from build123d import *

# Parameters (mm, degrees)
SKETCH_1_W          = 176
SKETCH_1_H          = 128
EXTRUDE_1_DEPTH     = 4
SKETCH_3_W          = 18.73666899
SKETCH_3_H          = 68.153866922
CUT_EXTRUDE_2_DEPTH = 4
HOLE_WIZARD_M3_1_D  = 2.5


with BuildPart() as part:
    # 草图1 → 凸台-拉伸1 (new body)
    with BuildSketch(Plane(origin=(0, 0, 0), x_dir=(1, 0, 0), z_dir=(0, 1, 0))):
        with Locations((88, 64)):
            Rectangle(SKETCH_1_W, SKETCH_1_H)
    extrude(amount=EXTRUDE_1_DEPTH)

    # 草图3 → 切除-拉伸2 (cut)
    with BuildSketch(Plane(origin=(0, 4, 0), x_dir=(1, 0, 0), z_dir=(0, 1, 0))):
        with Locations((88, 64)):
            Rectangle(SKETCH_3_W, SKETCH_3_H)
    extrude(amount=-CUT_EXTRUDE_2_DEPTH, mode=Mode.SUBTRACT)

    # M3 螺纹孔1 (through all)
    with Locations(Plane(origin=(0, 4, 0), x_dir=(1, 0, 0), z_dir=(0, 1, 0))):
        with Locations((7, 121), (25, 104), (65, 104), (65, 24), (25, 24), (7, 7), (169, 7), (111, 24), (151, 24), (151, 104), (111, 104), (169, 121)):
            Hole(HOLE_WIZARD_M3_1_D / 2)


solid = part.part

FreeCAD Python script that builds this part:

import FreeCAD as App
import Part
import Sketcher

V = App.Vector


def add_polygon(sketch, points):
    """Adds a closed chain of lines whose ends are joined by coincident constraints."""
    first, n = sketch.GeometryCount, len(points)
    for a, b in zip(points, points[1:] + points[:1]):
        sketch.addGeometry(Part.LineSegment(App.Vector(*a, 0), App.Vector(*b, 0)), False)
    for i in range(n):
        sketch.addConstraint(Sketcher.Constraint("Coincident", first + i, 2, first + (i + 1) % n, 1))

doc = App.newDocument("Part")
body = doc.addObject("PartDesign::Body", "Body")

# Sketch on XZ plane
sketch1 = doc.addObject("Sketcher::SketchObject", "Sketch")
body.addObject(sketch1)
sketch1.AttachmentSupport = (doc.XZ_Plane, [""])
sketch1.MapMode = "FlatFace"
add_polygon(sketch1, [(0, -128), (0, 0), (176, 0), (176, -128)])  # lines 0-3
sketch1.addConstraint([
    Sketcher.Constraint("Vertical", 0),
    Sketcher.Constraint("Horizontal", 1),
    Sketcher.Constraint("Vertical", 2),
    Sketcher.Constraint("Horizontal", 3),
    Sketcher.Constraint("Coincident", 0, 2, -1, 1),
    Sketcher.Constraint("DistanceX", 1, 1, 1, 2, 176.0),
    Sketcher.Constraint("DistanceY", 0, 1, 0, 2, 128.0),
])
pad1 = doc.addObject("PartDesign::Pad", "Pad")
body.addObject(pad1)
pad1.Profile = sketch1
pad1.Length = 4
pad1.Reversed = True

# Sketch on XZ plane
sketch2 = doc.addObject("Sketcher::SketchObject", "Sketch001")
body.addObject(sketch2)
sketch2.AttachmentSupport = (doc.XZ_Plane, [""])
sketch2.MapMode = "FlatFace"
sketch2.AttachmentOffset = App.Placement(V(0, 0, -4), App.Rotation())
add_polygon(sketch2, [(78.631666, -98.076933), (78.631666, -29.923067), (97.368334, -29.923067), (97.368334, -98.076933)])  # lines 0-3
sketch2.addConstraint([
    Sketcher.Constraint("Vertical", 0),
    Sketcher.Constraint("Horizontal", 1),
    Sketcher.Constraint("Vertical", 2),
    Sketcher.Constraint("Horizontal", 3),
    Sketcher.Constraint("DistanceX", 1, 1, 1, 2, 18.736669),
    Sketcher.Constraint("DistanceY", 0, 1, 0, 2, 68.153867),
    Sketcher.Constraint("DistanceX", -1, 1, 0, 2, 78.631666),
    Sketcher.Constraint("DistanceY", 0, 2, -1, 1, 29.923067),
])
pocket1 = doc.addObject("PartDesign::Pocket", "Pocket")
body.addObject(pocket1)
pocket1.Profile = sketch2
pocket1.Length = 4
pocket1.Reversed = True

# Sketch on XZ plane
sketch3 = doc.addObject("Sketcher::SketchObject", "Sketch002")
body.addObject(sketch3)
sketch3.AttachmentSupport = (doc.XZ_Plane, [""])
sketch3.MapMode = "FlatFace"
sketch3.AttachmentOffset = App.Placement(V(0, 0, -4), App.Rotation())
sketch3.addGeometry([
    Part.Circle(V(7, -121, 0), V(0, 0, 1), 1.25),  # 0
    Part.Circle(V(25, -104, 0), V(0, 0, 1), 1.25),  # 1
    Part.Circle(V(65, -104, 0), V(0, 0, 1), 1.25),  # 2
    Part.Circle(V(65, -24, 0), V(0, 0, 1), 1.25),  # 3
    Part.Circle(V(25, -24, 0), V(0, 0, 1), 1.25),  # 4
    Part.Circle(V(7, -7, 0), V(0, 0, 1), 1.25),  # 5
    Part.Circle(V(169, -7, 0), V(0, 0, 1), 1.25),  # 6
    Part.Circle(V(111, -24, 0), V(0, 0, 1), 1.25),  # 7
    Part.Circle(V(151, -24, 0), V(0, 0, 1), 1.25),  # 8
    Part.Circle(V(151, -104, 0), V(0, 0, 1), 1.25),  # 9
    Part.Circle(V(111, -104, 0), V(0, 0, 1), 1.25),  # 10
    Part.Circle(V(169, -121, 0), V(0, 0, 1), 1.25),  # 11
], False)
sketch3.addConstraint([
    Sketcher.Constraint("Equal", 0, 1),
    Sketcher.Constraint("Equal", 1, 2),
    Sketcher.Constraint("Equal", 2, 3),
    Sketcher.Constraint("Equal", 3, 4),
    Sketcher.Constraint("Equal", 4, 5),
    Sketcher.Constraint("Equal", 5, 6),
    Sketcher.Constraint("Equal", 6, 7),
    Sketcher.Constraint("Equal", 7, 8),
    Sketcher.Constraint("Equal", 8, 9),
    Sketcher.Constraint("Equal", 9, 10),
    Sketcher.Constraint("Equal", 10, 11),
    Sketcher.Constraint("Horizontal", 1, 3, 2, 3),
    Sketcher.Constraint("Horizontal", 3, 3, 4, 3),
    Sketcher.Constraint("Horizontal", 5, 3, 6, 3),
    Sketcher.Constraint("Horizontal", 4, 3, 7, 3),
    Sketcher.Constraint("Horizontal", 7, 3, 8, 3),
    Sketcher.Constraint("Horizontal", 2, 3, 9, 3),
    Sketcher.Constraint("Horizontal", 9, 3, 10, 3),
    Sketcher.Constraint("Horizontal", 0, 3, 11, 3),
    Sketcher.Constraint("Vertical", 2, 3, 3, 3),
    Sketcher.Constraint("Vertical", 1, 3, 4, 3),
    Sketcher.Constraint("Vertical", 0, 3, 5, 3),
    Sketcher.Constraint("Vertical", 8, 3, 9, 3),
    Sketcher.Constraint("Vertical", 7, 3, 10, 3),
    Sketcher.Constraint("Vertical", 6, 3, 11, 3),
    Sketcher.Constraint("Diameter", 0, 2.5),
    Sketcher.Constraint("DistanceX", -1, 1, 0, 3, 7.0),
    Sketcher.Constraint("DistanceY", 0, 3, -1, 1, 121.0),
    Sketcher.Constraint("DistanceX", -1, 1, 1, 3, 25.0),
    Sketcher.Constraint("DistanceY", 1, 3, -1, 1, 104.0),
    Sketcher.Constraint("DistanceX", -1, 1, 2, 3, 65.0),
    Sketcher.Constraint("DistanceY", 3, 3, -1, 1, 24.0),
    Sketcher.Constraint("DistanceY", 5, 3, -1, 1, 7.0),
    Sketcher.Constraint("DistanceX", -1, 1, 6, 3, 169.0),
    Sketcher.Constraint("DistanceX", -1, 1, 7, 3, 111.0),
    Sketcher.Constraint("DistanceX", -1, 1, 8, 3, 151.0),
])
doc.recompute()
hole = doc.addObject("PartDesign::Hole", "Hole")
body.addObject(hole)
hole.Profile = sketch3
hole.ThreadType = "None"
hole.Diameter = 2.5
hole.DepthType = "ThroughAll"
hole.Reversed = True

doc.recompute()
